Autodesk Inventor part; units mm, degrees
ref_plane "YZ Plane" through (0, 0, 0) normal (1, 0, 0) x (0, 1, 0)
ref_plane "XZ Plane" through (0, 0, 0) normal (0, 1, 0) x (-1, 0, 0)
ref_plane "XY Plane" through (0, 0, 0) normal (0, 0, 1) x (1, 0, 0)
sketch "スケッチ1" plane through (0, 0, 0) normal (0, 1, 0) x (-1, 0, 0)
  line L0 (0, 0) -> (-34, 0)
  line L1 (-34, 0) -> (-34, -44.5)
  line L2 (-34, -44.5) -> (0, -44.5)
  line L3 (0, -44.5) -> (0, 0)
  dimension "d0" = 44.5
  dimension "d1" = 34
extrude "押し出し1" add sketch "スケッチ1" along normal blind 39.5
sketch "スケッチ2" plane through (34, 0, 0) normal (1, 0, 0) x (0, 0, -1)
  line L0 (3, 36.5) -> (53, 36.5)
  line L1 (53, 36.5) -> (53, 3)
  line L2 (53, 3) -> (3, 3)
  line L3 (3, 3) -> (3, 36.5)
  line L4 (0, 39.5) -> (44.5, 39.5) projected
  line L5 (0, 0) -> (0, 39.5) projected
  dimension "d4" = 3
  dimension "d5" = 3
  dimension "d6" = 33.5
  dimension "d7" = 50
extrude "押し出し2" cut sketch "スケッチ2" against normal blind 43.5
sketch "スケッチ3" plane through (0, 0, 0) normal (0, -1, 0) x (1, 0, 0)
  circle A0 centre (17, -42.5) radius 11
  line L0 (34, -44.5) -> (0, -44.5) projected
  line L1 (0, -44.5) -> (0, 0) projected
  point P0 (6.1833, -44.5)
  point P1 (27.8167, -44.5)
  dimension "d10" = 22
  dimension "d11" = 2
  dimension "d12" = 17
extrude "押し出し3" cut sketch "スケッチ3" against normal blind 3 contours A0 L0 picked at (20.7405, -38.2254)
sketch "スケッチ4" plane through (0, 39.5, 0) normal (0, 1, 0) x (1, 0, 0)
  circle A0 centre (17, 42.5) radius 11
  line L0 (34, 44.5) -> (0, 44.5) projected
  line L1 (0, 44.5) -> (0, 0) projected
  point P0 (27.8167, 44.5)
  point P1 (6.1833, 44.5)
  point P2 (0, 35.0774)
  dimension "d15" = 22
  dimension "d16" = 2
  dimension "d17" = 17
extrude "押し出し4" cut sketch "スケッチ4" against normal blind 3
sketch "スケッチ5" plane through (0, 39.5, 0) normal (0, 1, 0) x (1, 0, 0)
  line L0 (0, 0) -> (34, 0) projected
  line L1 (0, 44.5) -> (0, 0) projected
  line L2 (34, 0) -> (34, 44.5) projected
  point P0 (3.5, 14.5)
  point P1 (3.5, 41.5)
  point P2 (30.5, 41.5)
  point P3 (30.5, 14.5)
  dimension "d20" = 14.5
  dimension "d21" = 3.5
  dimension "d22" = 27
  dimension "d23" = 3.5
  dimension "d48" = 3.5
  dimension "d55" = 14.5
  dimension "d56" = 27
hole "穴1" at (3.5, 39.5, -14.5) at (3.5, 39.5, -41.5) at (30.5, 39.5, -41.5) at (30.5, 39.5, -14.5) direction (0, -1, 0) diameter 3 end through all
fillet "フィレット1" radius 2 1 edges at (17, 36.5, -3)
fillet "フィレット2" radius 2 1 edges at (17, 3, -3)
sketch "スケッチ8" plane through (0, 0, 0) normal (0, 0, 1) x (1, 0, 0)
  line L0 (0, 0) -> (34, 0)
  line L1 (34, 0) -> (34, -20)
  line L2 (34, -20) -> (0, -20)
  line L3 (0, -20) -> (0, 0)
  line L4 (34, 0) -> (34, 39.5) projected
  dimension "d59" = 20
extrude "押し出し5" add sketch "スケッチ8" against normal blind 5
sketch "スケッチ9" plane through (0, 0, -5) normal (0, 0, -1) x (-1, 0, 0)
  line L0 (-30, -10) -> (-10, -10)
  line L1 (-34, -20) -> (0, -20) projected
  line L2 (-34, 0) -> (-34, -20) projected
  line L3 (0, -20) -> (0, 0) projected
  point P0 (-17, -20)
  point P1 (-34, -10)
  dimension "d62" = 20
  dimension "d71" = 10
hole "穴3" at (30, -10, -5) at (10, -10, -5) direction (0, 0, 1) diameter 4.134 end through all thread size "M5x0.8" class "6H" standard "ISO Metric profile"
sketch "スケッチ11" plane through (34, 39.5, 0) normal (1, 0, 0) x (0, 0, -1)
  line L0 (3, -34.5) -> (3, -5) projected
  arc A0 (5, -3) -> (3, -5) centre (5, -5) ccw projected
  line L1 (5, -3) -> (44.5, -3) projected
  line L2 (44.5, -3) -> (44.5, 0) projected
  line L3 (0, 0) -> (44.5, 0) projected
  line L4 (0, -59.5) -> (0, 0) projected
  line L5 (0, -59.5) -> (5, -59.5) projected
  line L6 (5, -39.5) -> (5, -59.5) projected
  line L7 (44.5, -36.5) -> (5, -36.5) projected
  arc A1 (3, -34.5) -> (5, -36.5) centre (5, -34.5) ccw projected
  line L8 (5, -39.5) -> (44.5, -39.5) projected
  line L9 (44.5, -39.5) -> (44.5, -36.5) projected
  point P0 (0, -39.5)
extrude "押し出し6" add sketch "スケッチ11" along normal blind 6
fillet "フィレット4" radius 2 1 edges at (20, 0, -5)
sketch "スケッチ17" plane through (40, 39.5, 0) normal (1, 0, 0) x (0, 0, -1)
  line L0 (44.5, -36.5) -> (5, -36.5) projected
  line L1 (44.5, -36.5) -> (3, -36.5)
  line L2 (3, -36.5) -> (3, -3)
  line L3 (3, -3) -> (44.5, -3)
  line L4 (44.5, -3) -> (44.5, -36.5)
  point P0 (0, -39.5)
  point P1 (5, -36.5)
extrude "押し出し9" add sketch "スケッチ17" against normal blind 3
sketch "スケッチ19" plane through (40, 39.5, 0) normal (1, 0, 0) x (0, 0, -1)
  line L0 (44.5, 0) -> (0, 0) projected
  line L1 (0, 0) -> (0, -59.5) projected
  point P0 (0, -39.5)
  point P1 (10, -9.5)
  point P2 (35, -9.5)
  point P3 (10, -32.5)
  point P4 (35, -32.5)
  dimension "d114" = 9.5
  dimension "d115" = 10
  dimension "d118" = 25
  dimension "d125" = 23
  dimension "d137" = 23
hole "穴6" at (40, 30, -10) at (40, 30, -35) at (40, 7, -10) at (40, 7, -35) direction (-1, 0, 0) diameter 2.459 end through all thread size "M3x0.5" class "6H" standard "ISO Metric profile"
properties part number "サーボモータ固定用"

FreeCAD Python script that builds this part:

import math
import FreeCAD as App
import Part
import Sketcher
Q = App.Units.Quantity


def edges_at(feature, points):
    """Names of the edges that pass closest to the given points."""
    edges = feature.Shape.Edges
    near = lambda p: min(range(len(edges)), key=lambda i: edges[i].distToShape(Part.Vertex(*p))[0])
    return sorted({f"Edge{near(p) + 1}" for p in points})

doc = App.newDocument("Part")
params = doc.addObject("Spreadsheet::Sheet", "Params")
for row, (alias, value) in enumerate([
    ("sketch1_width", "34 mm"),
    ("sketch1_height", "44.5 mm"),
    ("pad1_length", "39.5 mm"),
    ("sketch2_height", "50 mm"),
    ("sketch2_width", "33.5 mm"),
    ("pocket1_length", "43.5 mm"),
    ("sketch3_radius", "11 mm"),
    ("sketch3_height", "2 mm"),
    ("pocket2_length", "3 mm"),
    ("sketch4_diameter", "22 mm"),
    ("pocket3_length", "3 mm"),
    ("sketch5_diameter", "3 mm"),
    ("hole_diameter", "3 mm"),
    ("fillet_radius", "2 mm"),
    ("fillet2_radius", "2 mm"),
    ("sketch6_height", "20 mm"),
    ("sketch6_width", "34 mm"),
    ("pad2_length", "5 mm"),
    ("hole2_diameter", "4.134 mm"),
    ("sketch8_radius", "2 mm"),
    ("sketch8_width", "3 mm"),
    ("sketch8_width2", "20 mm"),
    ("sketch8_height", "5 mm"),
    ("sketch8_width3", "29.5 mm"),
    ("pad3_length", "6 mm"),
    ("fillet3_radius", "2 mm"),
    ("sketch9_width", "33.5 mm"),
    ("sketch9_height", "41.5 mm"),
    ("pad4_length", "3 mm"),
    ("hole3_diameter", "2.459 mm"),
], start=1):
    params.set(f"A{row}", alias)
    params.set(f"B{row}", "=" + value)
    params.setAlias(f"B{row}", alias)

body = doc.addObject("PartDesign::Body", "Body")

sketch1 = doc.addObject("Sketcher::SketchObject", "Sketch")
body.addObject(sketch1)
sketch1.AttachmentSupport = (doc.XZ_Plane, [""])
sketch1.MapMode = "FlatFace"
sketch1.addGeometry(Part.LineSegment(App.Vector(0, -44, 0), App.Vector(0, 0, 0)), False)
sketch1.addGeometry(Part.LineSegment(App.Vector(0, 0, 0), App.Vector(34, 0, 0)), False)
sketch1.addGeometry(Part.LineSegment(App.Vector(34, 0, 0), App.Vector(34, -44, 0)), False)
sketch1.addGeometry(Part.LineSegment(App.Vector(34, -44, 0), App.Vector(0, -44, 0)), False)
sketch1.addConstraint(Sketcher.Constraint("Coincident", 0, 2, 1, 1))
sketch1.addConstraint(Sketcher.Constraint("Coincident", 1, 2, 2, 1))
sketch1.addConstraint(Sketcher.Constraint("Coincident", 2, 2, 3, 1))
sketch1.addConstraint(Sketcher.Constraint("Coincident", 3, 2, 0, 1))
sketch1.addConstraint(Sketcher.Constraint("Vertical", 0))
sketch1.addConstraint(Sketcher.Constraint("Horizontal", 1))
sketch1.addConstraint(Sketcher.Constraint("Vertical", 2))
sketch1.addConstraint(Sketcher.Constraint("Horizontal", 3))
sketch1.addConstraint(Sketcher.Constraint("Coincident", 0, 2, -1, 1))
sketch1.addConstraint(Sketcher.Constraint("DistanceX", 1, 1, 1, 2, Q("34 mm")))
sketch1.addConstraint(Sketcher.Constraint("DistanceY", 0, 1, 0, 2, Q("44.5 mm")))
sketch1.setExpression("Constraints[9]", "Params.sketch1_width")
sketch1.setExpression("Constraints[10]", "Params.sketch1_height")
pad1 = doc.addObject("PartDesign::Pad", "Pad")
body.addObject(pad1)
pad1.Profile = sketch1
pad1.setExpression("Length", "Params.pad1_length")
pad1.Reversed = True

sketch2 = doc.addObject("Sketcher::SketchObject", "Sketch001")
body.addObject(sketch2)
sketch2.AttachmentSupport = (doc.YZ_Plane, [""])
sketch2.MapMode = "FlatFace"
sketch2.AttachmentOffset = App.Placement(App.Vector(0, 0, 34), App.Rotation())
sketch2.addGeometry(Part.LineSegment(App.Vector(36, -53, 0), App.Vector(36, -3, 0)), False)
sketch2.addGeometry(Part.LineSegment(App.Vector(36, -3, 0), App.Vector(3, -3, 0)), False)
sketch2.addGeometry(Part.LineSegment(App.Vector(3, -3, 0), App.Vector(3, -53, 0)), False)
sketch2.addGeometry(Part.LineSegment(App.Vector(3, -53, 0), App.Vector(36, -53, 0)), False)
sketch2.addConstraint(Sketcher.Constraint("Coincident", 0, 2, 1, 1))
sketch2.addConstraint(Sketcher.Constraint("Coincident", 1, 2, 2, 1))
sketch2.addConstraint(Sketcher.Constraint("Coincident", 2, 2, 3, 1))
sketch2.addConstraint(Sketcher.Constraint("Coincident", 3, 2, 0, 1))
sketch2.addConstraint(Sketcher.Constraint("Vertical", 0))
sketch2.addConstraint(Sketcher.Constraint("Horizontal", 1))
sketch2.addConstraint(Sketcher.Constraint("Vertical", 2))
sketch2.addConstraint(Sketcher.Constraint("Horizontal", 3))
sketch2.addConstraint(Sketcher.Constraint("DistanceY", 0, 1, 0, 2, Q("50 mm")))
sketch2.addConstraint(Sketcher.Constraint("DistanceX", 1, 2, 1, 1, Q("33.5 mm")))
sketch2.addConstraint(Sketcher.Constraint("DistanceY", 0, 2, -1, 1, Q("3 mm")))
sketch2.addConstraint(Sketcher.Constraint("DistanceX", -1, 1, 1, 2, Q("3 mm")))
sketch2.setExpression("Constraints[8]", "Params.sketch2_height")
sketch2.setExpression("Constraints[9]", "Params.sketch2_width")
pocket1 = doc.addObject("PartDesign::Pocket", "Pocket")
body.addObject(pocket1)
pocket1.Profile = sketch2
pocket1.setExpression("Length", "Params.pocket1_length")

sketch3 = doc.addObject("Sketcher::SketchObject", "Sketch002")
body.addObject(sketch3)
sketch3.AttachmentSupport = (doc.XZ_Plane, [""])
sketch3.MapMode = "FlatFace"
sketch3.addGeometry(Part.ArcOfCircle(Part.Circle(App.Vector(17, -42, 0), App.Vector(0, 0, 1), 11), math.radians(-10), math.radians(190)), False)
sketch3.addGeometry(Part.LineSegment(App.Vector(6, -44, 0), App.Vector(28, -44, 0)), False)
sketch3.addConstraint(Sketcher.Constraint("Coincident", 0, 1, 1, 2))
sketch3.addConstraint(Sketcher.Constraint("Coincident", 1, 1, 0, 2))
sketch3.addConstraint(Sketcher.Constraint("Horizontal", 1))
sketch3.addConstraint(Sketcher.Constraint("Radius", 0, Q("11 mm")))
sketch3.addConstraint(Sketcher.Constraint("DistanceX", -1, 1, 0, 3, Q("17 mm")))
sketch3.addConstraint(Sketcher.Constraint("DistanceY", 0, 1, 0, 3, Q("2 mm")))
sketch3.addConstraint(Sketcher.Constraint("DistanceY", 0, 3, -1, 1, Q("42.5 mm")))
sketch3.setExpression("Constraints[3]", "Params.sketch3_radius")
sketch3.setExpression("Constraints[5]", "Params.sketch3_height")
pocket2 = doc.addObject("PartDesign::Pocket", "Pocket001")
body.addObject(pocket2)
pocket2.Profile = sketch3
pocket2.setExpression("Length", "Params.pocket2_length")

sketch4 = doc.addObject("Sketcher::SketchObject", "Sketch003")
body.addObject(sketch4)
sketch4.AttachmentSupport = (doc.XZ_Plane, [""])
sketch4.MapMode = "FlatFace"
sketch4.AttachmentOffset = App.Placement(App.Vector(0, 0, -39.5), App.Rotation())
sketch4.addGeometry(Part.Circle(App.Vector(17, -42, 0), App.Vector(0, 0, 1), 11), False)
sketch4.addConstraint(Sketcher.Constraint("Diameter", 0, Q("22 mm")))
sketch4.addConstraint(Sketcher.Constraint("DistanceX", -1, 1, 0, 3, Q("17 mm")))
sketch4.addConstraint(Sketcher.Constraint("DistanceY", 0, 3, -1, 1, Q("42.5 mm")))
sketch4.setExpression("Constraints[0]", "Params.sketch4_diameter")
pocket3 = doc.addObject("PartDesign::Pocket", "Pocket002")
body.addObject(pocket3)
pocket3.Profile = sketch4
pocket3.setExpression("Length", "Params.pocket3_length")
pocket3.Reversed = True

sketch5 = doc.addObject("Sketcher::SketchObject", "Sketch004")
body.addObject(sketch5)
sketch5.AttachmentSupport = (doc.XZ_Plane, [""])
sketch5.MapMode = "FlatFace"
sketch5.AttachmentOffset = App.Placement(App.Vector(0, 0, -39.5), App.Rotation())
sketch5.addGeometry(Part.Circle(App.Vector(3.5, -14.5, 0), App.Vector(0, 0, 1), 1.5), False)
sketch5.addGeometry(Part.Circle(App.Vector(3.5, -41.5, 0), App.Vector(0, 0, 1), 1.5), False)
sketch5.addGeometry(Part.Circle(App.Vector(30.5, -41.5, 0), App.Vector(0, 0, 1), 1.5), False)
sketch5.addGeometry(Part.Circle(App.Vector(30.5, -14.5, 0), App.Vector(0, 0, 1), 1.5), False)
sketch5.addConstraint(Sketcher.Constraint("Equal", 0, 1))
sketch5.addConstraint(Sketcher.Constraint("Equal", 1, 2))
sketch5.addConstraint(Sketcher.Constraint("Equal", 2, 3))
sketch5.addConstraint(Sketcher.Constraint("Horizontal", 1, 3, 2, 3))
sketch5.addConstraint(Sketcher.Constraint("Horizontal", 0, 3, 3, 3))
sketch5.addConstraint(Sketcher.Constraint("Vertical", 0, 3, 1, 3))
sketch5.addConstraint(Sketcher.Constraint("Vertical", 2, 3, 3, 3))
sketch5.addConstraint(Sketcher.Constraint("Diameter", 0, Q("3 mm")))
sketch5.addConstraint(Sketcher.Constraint("DistanceY", 1, 3, 0, 3, Q("27 mm")))
sketch5.addConstraint(Sketcher.Constraint("DistanceX", 1, 3, 2, 3, Q("27 mm")))
sketch5.addConstraint(Sketcher.Constraint("DistanceX", -1, 1, 0, 3, Q("3.5 mm")))
sketch5.addConstraint(Sketcher.Constraint("DistanceY", 0, 3, -1, 1, Q("14.5 mm")))
sketch5.setExpression("Constraints[7]", "Params.sketch5_diameter")
doc.recompute()
hole = doc.addObject("PartDesign::Hole", "Hole")
body.addObject(hole)
hole.Profile = sketch5
hole.ThreadType = "None"
hole.setExpression("Diameter", "Params.hole_diameter")
hole.DepthType = "ThroughAll"
hole.Reversed = True
doc.recompute()

fillet = doc.addObject("PartDesign::Fillet", "Fillet")
body.addObject(fillet)
fillet.Base = (hole, edges_at(hole, [(17, 36.5, -3)]))
fillet.setExpression("Radius", "Params.fillet_radius")
doc.recompute()

fillet2 = doc.addObject("PartDesign::Fillet", "Fillet001")
body.addObject(fillet2)
fillet2.Base = (fillet, edges_at(fillet, [(17, 3, -3)]))
fillet2.setExpression("Radius", "Params.fillet2_radius")

sketch6 = doc.addObject("Sketcher::SketchObject", "Sketch005")
body.addObject(sketch6)
sketch6.AttachmentSupport = (doc.XY_Plane, [""])
sketch6.MapMode = "FlatFace"
sketch6.addGeometry(Part.LineSegment(App.Vector(34, 0, 0), App.Vector(0, 0, 0)), False)
sketch6.addGeometry(Part.LineSegment(App.Vector(0, 0, 0), App.Vector(0, -20, 0)), False)
sketch6.addGeometry(Part.LineSegment(App.Vector(0, -20, 0), App.Vector(34, -20, 0)), False)
sketch6.addGeometry(Part.LineSegment(App.Vector(34, -20, 0), App.Vector(34, 0, 0)), False)
sketch6.addConstraint(Sketcher.Constraint("Coincident", 0, 2, 1, 1))
sketch6.addConstraint(Sketcher.Constraint("Coincident", 1, 2, 2, 1))
sketch6.addConstraint(Sketcher.Constraint("Coincident", 2, 2, 3, 1))
sketch6.addConstraint(Sketcher.Constraint("Coincident", 3, 2, 0, 1))
sketch6.addConstraint(Sketcher.Constraint("Horizontal", 0))
sketch6.addConstraint(Sketcher.Constraint("Vertical", 1))
sketch6.addConstraint(Sketcher.Constraint("Horizontal", 2))
sketch6.addConstraint(Sketcher.Constraint("Vertical", 3))
sketch6.addConstraint(Sketcher.Constraint("Coincident", 0, 2, -1, 1))
sketch6.addConstraint(Sketcher.Constraint("DistanceY", 1, 2, 1, 1, Q("20 mm")))
sketch6.addConstraint(Sketcher.Constraint("DistanceX", 0, 2, 0, 1, Q("34 mm")))
sketch6.setExpression("Constraints[9]", "Params.sketch6_height")
sketch6.setExpression("Constraints[10]", "Params.sketch6_width")
pad2 = doc.addObject("PartDesign::Pad", "Pad001")
body.addObject(pad2)
pad2.Profile = sketch6
pad2.setExpression("Length", "Params.pad2_length")
pad2.Reversed = True

sketch7 = doc.addObject("Sketcher::SketchObject", "Sketch006")
body.addObject(sketch7)
sketch7.AttachmentSupport = (doc.XY_Plane, [""])
sketch7.MapMode = "FlatFace"
sketch7.AttachmentOffset = App.Placement(App.Vector(0, 0, -5), App.Rotation())
sketch7.addGeometry(Part.Circle(App.Vector(30, -10, 0), App.Vector(0, 0, 1), 2.1), False)
sketch7.addGeometry(Part.Circle(App.Vector(10, -10, 0), App.Vector(0, 0, 1), 2.1), False)
sketch7.addConstraint(Sketcher.Constraint("Equal", 0, 1))
sketch7.addConstraint(Sketcher.Constraint("Horizontal", 0, 3, 1, 3))
sketch7.addConstraint(Sketcher.Constraint("Diameter", 0, Q("4.134 mm")))
sketch7.addConstraint(Sketcher.Constraint("DistanceX", -1, 1, 0, 3, Q("30 mm")))
sketch7.addConstraint(Sketcher.Constraint("DistanceY", 0, 3, -1, 1, Q("10 mm")))
sketch7.addConstraint(Sketcher.Constraint("DistanceX", -1, 1, 1, 3, Q("10 mm")))
doc.recompute()
hole2 = doc.addObject("PartDesign::Hole", "Hole001")
body.addObject(hole2)
hole2.Profile = sketch7
hole2.ThreadType = "None"
hole2.setExpression("Diameter", "Params.hole2_diameter")
hole2.DepthType = "ThroughAll"
hole2.Reversed = True

sketch8 = doc.addObject("Sketcher::SketchObject", "Sketch007")
body.addObject(sketch8)
sketch8.AttachmentSupport = (doc.YZ_Plane, [""])
sketch8.MapMode = "FlatFace"
sketch8.AttachmentOffset = App.Placement(App.Vector(0, 0, 34), App.Rotation())
sketch8.addGeometry(Part.ArcOfCircle(Part.Circle(App.Vector(5, -5, 0), App.Vector(0, 0, 1), 2), math.radians(90), math.radians(180)), False)
sketch8.addGeometry(Part.LineSegment(App.Vector(5, -3, 0), App.Vector(34.5, -3, 0)), False)
sketch8.addGeometry(Part.ArcOfCircle(Part.Circle(App.Vector(34.5, -5, 0), App.Vector(0, 0, 1), 2), math.radians(0), math.radians(90)), False)
sketch8.addGeometry(Part.LineSegment(App.Vector(36.5, -5, 0), App.Vector(36.5, -44.5, 0)), False)
sketch8.addGeometry(Part.LineSegment(App.Vector(36.5, -44.5, 0), App.Vector(39.5, -44.5, 0)), False)
sketch8.addGeometry(Part.LineSegment(App.Vector(39.5, -44.5, 0), App.Vector(39.5, 0, 0)), False)
sketch8.addGeometry(Part.LineSegment(App.Vector(39.5, 0, 0), App.Vector(-20, 0, 0)), False)
sketch8.addGeometry(Part.LineSegment(App.Vector(-20, 0, 0), App.Vector(-20, -5, 0)), False)
sketch8.addGeometry(Part.LineSegment(App.Vector(-20, -5, 0), App.Vector(0, -5, 0)), False)
sketch8.addGeometry(Part.LineSegment(App.Vector(0, -5, 0), App.Vector(0, -44.5, 0)), False)
sketch8.addGeometry(Part.LineSegment(App.Vector(0, -44.5, 0), App.Vector(3, -44.5, 0)), False)
sketch8.addGeometry(Part.LineSegment(App.Vector(3, -44.5, 0), App.Vector(3, -5, 0)), False)
sketch8.addConstraint(Sketcher.Constraint("Tangent", 0, 1, 1, 1))
sketch8.addConstraint(Sketcher.Constraint("Tangent", 1, 2, 2, 2))
sketch8.addConstraint(Sketcher.Constraint("Tangent", 2, 1, 3, 1))
sketch8.addConstraint(Sketcher.Constraint("Coincident", 3, 2, 4, 1))
sketch8.addConstraint(Sketcher.Constraint("Coincident", 4, 2, 5, 1))
sketch8.addConstraint(Sketcher.Constraint("Coincident", 5, 2, 6, 1))
sketch8.addConstraint(Sketcher.Constraint("Coincident", 6, 2, 7, 1))
sketch8.addConstraint(Sketcher.Constraint("Coincident", 7, 2, 8, 1))
sketch8.addConstraint(Sketcher.Constraint("Coincident", 8, 2, 9, 1))
sketch8.addConstraint(Sketcher.Constraint("Coincident", 9, 2, 10, 1))
sketch8.addConstraint(Sketcher.Constraint("Coincident", 10, 2, 11, 1))
sketch8.addConstraint(Sketcher.Constraint("Tangent", 11, 2, 0, 2))
sketch8.addConstraint(Sketcher.Constraint("Horizontal", 1))
sketch8.addConstraint(Sketcher.Constraint("Vertical", 3))
sketch8.addConstraint(Sketcher.Constraint("Horizontal", 4))
sketch8.addConstraint(Sketcher.Constraint("Vertical", 5))
sketch8.addConstraint(Sketcher.Constraint("Horizontal", 6))
sketch8.addConstraint(Sketcher.Constraint("Vertical", 7))
sketch8.addConstraint(Sketcher.Constraint("Horizontal", 8))
sketch8.addConstraint(Sketcher.Constraint("Vertical", 9))
sketch8.addConstraint(Sketcher.Constraint("Horizontal", 10))
sketch8.addConstraint(Sketcher.Constraint("Vertical", 11))
sketch8.addConstraint(Sketcher.Constraint("Equal", 0, 2))
sketch8.addConstraint(Sketcher.Constraint("PointOnObject", 5, 2, -1))
sketch8.addConstraint(Sketcher.Constraint("PointOnObject", 8, 2, -2))
sketch8.addConstraint(Sketcher.Constraint("Horizontal", 2, 1, 7, 2))
sketch8.addConstraint(Sketcher.Constraint("Horizontal", 4, 2, 9, 2))
sketch8.addConstraint(Sketcher.Constraint("Equal", 4, 10))
sketch8.addConstraint(Sketcher.Constraint("Radius", 0, Q("2 mm")))
sketch8.addConstraint(Sketcher.Constraint("DistanceX", 4, 1, 4, 2, Q("3 mm")))
sketch8.addConstraint(Sketcher.Constraint("DistanceX", 8, 1, 8, 2, Q("20 mm")))
sketch8.addConstraint(Sketcher.Constraint("DistanceY", 7, 2, 7, 1, Q("5 mm")))
sketch8.addConstraint(Sketcher.Constraint("DistanceX", 1, 1, 1, 2, Q("29.5 mm")))
sketch8.addConstraint(Sketcher.Constraint("DistanceY", 3, 2, 3, 1, Q("39.5 mm")))
sketch8.setExpression("Constraints[28]", "Params.sketch8_radius")
sketch8.setExpression("Constraints[29]", "Params.sketch8_width")
sketch8.setExpression("Constraints[30]", "Params.sketch8_width2")
sketch8.setExpression("Constraints[31]", "Params.sketch8_height")
sketch8.setExpression("Constraints[32]", "Params.sketch8_width3")
pad3 = doc.addObject("PartDesign::Pad", "Pad002")
body.addObject(pad3)
pad3.Profile = sketch8
pad3.setExpression("Length", "Params.pad3_length")
doc.recompute()

fillet3 = doc.addObject("PartDesign::Fillet", "Fillet002")
body.addObject(fillet3)
fillet3.Base = (pad3, edges_at(pad3, [(20, 0, -5)]))
fillet3.setExpression("Radius", "Params.fillet3_radius")

sketch9 = doc.addObject("Sketcher::SketchObject", "Sketch008")
body.addObject(sketch9)
sketch9.AttachmentSupport = (doc.YZ_Plane, [""])
sketch9.MapMode = "FlatFace"
sketch9.AttachmentOffset = App.Placement(App.Vector(0, 0, 40), App.Rotation())
sketch9.addGeometry(Part.LineSegment(App.Vector(3, -3, 0), App.Vector(3, -44, 0)), False)
sketch9.addGeometry(Part.LineSegment(App.Vector(3, -44, 0), App.Vector(36, -44, 0)), False)
sketch9.addGeometry(Part.LineSegment(App.Vector(36, -44, 0), App.Vector(36, -3, 0)), False)
sketch9.addGeometry(Part.LineSegment(App.Vector(36, -3, 0), App.Vector(3, -3, 0)), False)
sketch9.addConstraint(Sketcher.Constraint("Coincident", 0, 2, 1, 1))
sketch9.addConstraint(Sketcher.Constraint("Coincident", 1, 2, 2, 1))
sketch9.addConstraint(Sketcher.Constraint("Coincident", 2, 2, 3, 1))
sketch9.addConstraint(Sketcher.Constraint("Coincident", 3, 2, 0, 1))
sketch9.addConstraint(Sketcher.Constraint("Vertical", 0))
sketch9.addConstraint(Sketcher.Constraint("Horizontal", 1))
sketch9.addConstraint(Sketcher.Constraint("Vertical", 2))
sketch9.addConstraint(Sketcher.Constraint("Horizontal", 3))
sketch9.addConstraint(Sketcher.Constraint("DistanceX", 1, 1, 1, 2, Q("33.5 mm")))
sketch9.addConstraint(Sketcher.Constraint("DistanceY", 0, 2, 0, 1, Q("41.5 mm")))
sketch9.addConstraint(Sketcher.Constraint("DistanceX", -1, 1, 0, 2, Q("3 mm")))
sketch9.addConstraint(Sketcher.Constraint("DistanceY", 2, 2, -1, 1, Q("3 mm")))
sketch9.setExpression("Constraints[8]", "Params.sketch9_width")
sketch9.setExpression("Constraints[9]", "Params.sketch9_height")
pad4 = doc.addObject("PartDesign::Pad", "Pad003")
body.addObject(pad4)
pad4.Profile = sketch9
pad4.setExpression("Length", "Params.pad4_length")
pad4.Reversed = True

sketch10 = doc.addObject("Sketcher::SketchObject", "Sketch009")
body.addObject(sketch10)
sketch10.AttachmentSupport = (doc.YZ_Plane, [""])
sketch10.MapMode = "FlatFace"
sketch10.AttachmentOffset = App.Placement(App.Vector(0, 0, 40), App.Rotation())
sketch10.addGeometry(Part.Circle(App.Vector(30, -10, 0), App.Vector(0, 0, 1), 1.2), False)
sketch10.addGeometry(Part.Circle(App.Vector(30, -35, 0), App.Vector(0, 0, 1), 1.2), False)
sketch10.addGeometry(Part.Circle(App.Vector(7, -10, 0), App.Vector(0, 0, 1), 1.2), False)
sketch10.addGeometry(Part.Circle(App.Vector(7, -35, 0), App.Vector(0, 0, 1), 1.2), False)
sketch10.addConstraint(Sketcher.Constraint("Equal", 0, 1))
sketch10.addConstraint(Sketcher.Constraint("Equal", 1, 2))
sketch10.addConstraint(Sketcher.Constraint("Equal", 2, 3))
sketch10.addConstraint(Sketcher.Constraint("Horizontal", 0, 3, 2, 3))
sketch10.addConstraint(Sketcher.Constraint("Horizontal", 1, 3, 3, 3))
sketch10.addConstraint(Sketcher.Constraint("Vertical", 0, 3, 1, 3))
sketch10.addConstraint(Sketcher.Constraint("Vertical", 2, 3, 3, 3))
sketch10.addConstraint(Sketcher.Constraint("Diameter", 0, Q("2.459 mm")))
sketch10.addConstraint(Sketcher.Constraint("DistanceX", -1, 1, 0, 3, Q("30 mm")))
sketch10.addConstraint(Sketcher.Constraint("DistanceY", 0, 3, -1, 1, Q("10 mm")))
sketch10.addConstraint(Sketcher.Constraint("DistanceY", 1, 3, -1, 1, Q("35 mm")))
sketch10.addConstraint(Sketcher.Constraint("DistanceX", -1, 1, 2, 3, Q("7 mm")))
doc.recompute()
hole3 = doc.addObject("PartDesign::Hole", "Hole002")
body.addObject(hole3)
hole3.Profile = sketch10
hole3.ThreadType = "None"
hole3.setExpression("Diameter", "Params.hole3_diameter")
hole3.DepthType = "ThroughAll"

doc.recompute()
